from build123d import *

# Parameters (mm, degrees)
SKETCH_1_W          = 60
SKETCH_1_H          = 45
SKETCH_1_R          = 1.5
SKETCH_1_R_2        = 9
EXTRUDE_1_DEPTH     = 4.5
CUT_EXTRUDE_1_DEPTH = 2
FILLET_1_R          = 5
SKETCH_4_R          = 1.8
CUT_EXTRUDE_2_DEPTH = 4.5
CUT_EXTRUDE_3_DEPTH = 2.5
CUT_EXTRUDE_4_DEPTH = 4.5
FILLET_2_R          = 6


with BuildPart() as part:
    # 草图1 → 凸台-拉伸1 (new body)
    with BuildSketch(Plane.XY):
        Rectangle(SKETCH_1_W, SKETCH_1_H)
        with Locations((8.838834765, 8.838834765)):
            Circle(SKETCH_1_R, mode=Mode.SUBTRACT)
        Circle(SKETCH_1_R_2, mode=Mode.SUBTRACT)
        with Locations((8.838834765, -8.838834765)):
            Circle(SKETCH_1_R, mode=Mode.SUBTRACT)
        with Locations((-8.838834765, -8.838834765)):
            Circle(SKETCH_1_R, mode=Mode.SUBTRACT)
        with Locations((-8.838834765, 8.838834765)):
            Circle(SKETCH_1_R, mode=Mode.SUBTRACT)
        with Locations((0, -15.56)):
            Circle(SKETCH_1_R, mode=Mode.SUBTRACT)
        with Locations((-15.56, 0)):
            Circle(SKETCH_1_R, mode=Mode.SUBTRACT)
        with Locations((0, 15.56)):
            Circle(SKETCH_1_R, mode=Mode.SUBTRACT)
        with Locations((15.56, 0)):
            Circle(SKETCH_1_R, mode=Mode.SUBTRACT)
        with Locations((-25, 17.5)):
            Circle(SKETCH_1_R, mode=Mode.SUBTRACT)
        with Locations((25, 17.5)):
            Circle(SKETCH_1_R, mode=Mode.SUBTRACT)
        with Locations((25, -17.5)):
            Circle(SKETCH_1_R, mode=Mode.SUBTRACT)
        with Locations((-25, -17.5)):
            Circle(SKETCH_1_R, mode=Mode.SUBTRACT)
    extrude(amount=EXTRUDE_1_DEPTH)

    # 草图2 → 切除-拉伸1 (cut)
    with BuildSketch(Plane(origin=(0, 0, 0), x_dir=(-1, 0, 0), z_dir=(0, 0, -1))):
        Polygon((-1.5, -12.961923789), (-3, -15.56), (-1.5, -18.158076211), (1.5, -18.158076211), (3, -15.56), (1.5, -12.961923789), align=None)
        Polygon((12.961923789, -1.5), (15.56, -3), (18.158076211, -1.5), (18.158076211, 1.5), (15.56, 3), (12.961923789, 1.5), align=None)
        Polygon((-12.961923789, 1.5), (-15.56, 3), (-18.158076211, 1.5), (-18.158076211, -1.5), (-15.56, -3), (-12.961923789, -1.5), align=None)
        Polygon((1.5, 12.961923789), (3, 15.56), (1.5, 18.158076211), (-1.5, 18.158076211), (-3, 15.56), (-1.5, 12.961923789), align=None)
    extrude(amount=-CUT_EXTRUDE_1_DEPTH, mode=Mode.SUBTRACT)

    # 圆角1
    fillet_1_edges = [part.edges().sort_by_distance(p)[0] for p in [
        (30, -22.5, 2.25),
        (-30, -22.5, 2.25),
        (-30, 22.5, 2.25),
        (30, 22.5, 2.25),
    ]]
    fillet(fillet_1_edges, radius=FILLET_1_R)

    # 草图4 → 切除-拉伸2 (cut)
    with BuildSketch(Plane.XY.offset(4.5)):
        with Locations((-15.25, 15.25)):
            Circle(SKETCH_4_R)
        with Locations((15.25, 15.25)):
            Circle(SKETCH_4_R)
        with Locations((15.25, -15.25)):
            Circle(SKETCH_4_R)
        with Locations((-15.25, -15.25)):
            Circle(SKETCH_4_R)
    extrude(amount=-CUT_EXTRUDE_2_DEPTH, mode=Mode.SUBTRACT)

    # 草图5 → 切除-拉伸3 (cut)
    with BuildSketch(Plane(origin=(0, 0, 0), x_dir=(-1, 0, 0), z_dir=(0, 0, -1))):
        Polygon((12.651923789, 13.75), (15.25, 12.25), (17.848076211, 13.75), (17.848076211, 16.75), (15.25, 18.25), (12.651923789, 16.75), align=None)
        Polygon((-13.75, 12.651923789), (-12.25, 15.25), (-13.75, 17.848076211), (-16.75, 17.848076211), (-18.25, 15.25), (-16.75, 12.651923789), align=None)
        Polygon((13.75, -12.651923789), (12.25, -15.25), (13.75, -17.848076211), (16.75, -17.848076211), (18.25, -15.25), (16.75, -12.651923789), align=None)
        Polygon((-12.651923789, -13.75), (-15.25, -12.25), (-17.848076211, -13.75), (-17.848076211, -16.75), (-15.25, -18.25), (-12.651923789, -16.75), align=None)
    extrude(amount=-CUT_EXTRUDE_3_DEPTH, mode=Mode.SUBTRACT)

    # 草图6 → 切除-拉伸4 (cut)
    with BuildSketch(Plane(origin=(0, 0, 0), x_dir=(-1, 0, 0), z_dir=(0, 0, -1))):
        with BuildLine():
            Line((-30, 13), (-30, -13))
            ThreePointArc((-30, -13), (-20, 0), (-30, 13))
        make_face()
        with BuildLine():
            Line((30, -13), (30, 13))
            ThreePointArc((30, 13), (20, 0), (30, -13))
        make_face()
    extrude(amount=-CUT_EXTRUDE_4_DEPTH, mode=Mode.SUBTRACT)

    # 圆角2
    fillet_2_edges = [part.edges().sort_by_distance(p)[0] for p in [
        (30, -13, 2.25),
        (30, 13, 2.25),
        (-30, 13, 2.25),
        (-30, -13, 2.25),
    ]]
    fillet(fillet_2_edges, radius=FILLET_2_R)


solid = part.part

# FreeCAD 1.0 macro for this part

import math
import FreeCAD as App
import Part
import Sketcher
Q = App.Units.Quantity


def edges_at(feature, points):
    """Names of the edges that pass closest to the given points."""
    edges = feature.Shape.Edges
    near = lambda p: min(range(len(edges)), key=lambda i: edges[i].distToShape(Part.Vertex(*p))[0])
    return sorted({f"Edge{near(p) + 1}" for p in points})

doc = App.newDocument("Part")
body = doc.addObject("PartDesign::Body", "Body")

sketch1 = body.newObject("Sketcher::SketchObject", "Sketch")
sketch1.AttachmentSupport = (doc.getObject("XY_Plane"), [""])
sketch1.MapMode = "FlatFace"
sketch1.addGeometry([
    Part.LineSegment(App.Vector(-30, 22.5, 0), App.Vector(-30, -22.5, 0)),
    Part.LineSegment(App.Vector(-30, -22.5, 0), App.Vector(30, -22.5, 0)),
    Part.LineSegment(App.Vector(30, -22.5, 0), App.Vector(30, 22.5, 0)),
    Part.LineSegment(App.Vector(30, 22.5, 0), App.Vector(-30, 22.5, 0)),
    Part.Circle(App.Vector(-25, -17.5, 0), App.Vector(0, 0, 1), 1.5),
    Part.Circle(App.Vector(-8.838835, -8.838835, 0), App.Vector(0, 0, 1), 1.5),
    Part.Circle(App.Vector(0, -15.56, 0), App.Vector(0, 0, 1), 1.5),
    Part.Circle(App.Vector(25, -17.5, 0), App.Vector(0, 0, 1), 1.5),
    Part.Circle(App.Vector(8.838835, -8.838835, 0), App.Vector(0, 0, 1), 1.5),
    Part.Circle(App.Vector(-15.56, 0, 0), App.Vector(0, 0, 1), 1.5),
    Part.Circle(App.Vector(-8.838835, 8.838835, 0), App.Vector(0, 0, 1), 1.5),
    Part.Circle(App.Vector(-25, 17.5, 0), App.Vector(0, 0, 1), 1.5),
    Part.Circle(App.Vector(0, 0, 0), App.Vector(0, 0, 1), 9),
    Part.Circle(App.Vector(8.838835, 8.838835, 0), App.Vector(0, 0, 1), 1.5),
    Part.Circle(App.Vector(15.56, 0, 0), App.Vector(0, 0, 1), 1.5),
    Part.Circle(App.Vector(0, 15.56, 0), App.Vector(0, 0, 1), 1.5),
    Part.Circle(App.Vector(25, 17.5, 0), App.Vector(0, 0, 1), 1.5),
], False)
sketch1.addConstraint([
    Sketcher.Constraint("Coincident", 0, 2, 1, 1),
    Sketcher.Constraint("Coincident", 1, 2, 2, 1),
    Sketcher.Constraint("Coincident", 2, 2, 3, 1),
    Sketcher.Constraint("Coincident", 3, 2, 0, 1),
    Sketcher.Constraint("Vertical", 0),
    Sketcher.Constraint("Horizontal", 1),
    Sketcher.Constraint("Vertical", 2),
    Sketcher.Constraint("Horizontal", 3),
    Sketcher.Constraint("Coincident", 12, 3, -1, 1),
    Sketcher.Constraint("Equal", 4, 5),
    Sketcher.Constraint("Equal", 5, 6),
    Sketcher.Constraint("Equal", 6, 7),
    Sketcher.Constraint("Equal", 7, 8),
    Sketcher.Constraint("Equal", 8, 9),
    Sketcher.Constraint("Equal", 9, 10),
    Sketcher.Constraint("Equal", 10, 11),
    Sketcher.Constraint("Equal", 11, 13),
    Sketcher.Constraint("Equal", 13, 14),
    Sketcher.Constraint("Equal", 14, 15),
    Sketcher.Constraint("Equal", 15, 16),
    Sketcher.Constraint("Symmetric", 8, 3, 10, 3, -1, 1),
    Sketcher.Constraint("Symmetric", 7, 3, 11, 3, -1, 1),
    Sketcher.Constraint("Symmetric", 5, 3, 13, 3, -1, 1),
    Sketcher.Constraint("Symmetric", 9, 3, 14, 3, -1, 1),
    Sketcher.Constraint("Symmetric", 6, 3, 15, 3, -1, 1),
    Sketcher.Constraint("Symmetric", 4, 3, 16, 3, -1, 1),
    Sketcher.Constraint("Symmetric", 0, 2, 2, 2, -1, 1),
    Sketcher.Constraint("Symmetric", 4, 3, 7, 3, -2),
    Sketcher.Constraint("Symmetric", 5, 3, 8, 3, -2),
    Sketcher.Constraint("PointOnObject", 6, 3, -2),
    Sketcher.Constraint("PointOnObject", 9, 3, -1),
    Sketcher.Constraint("Diameter", 4, 3.0),
    Sketcher.Constraint("Diameter", 12, 18.0),
    Sketcher.Constraint("DistanceX", 1, 1, 1, 2, 60.0),
    Sketcher.Constraint("DistanceY", 0, 2, 0, 1, 45.0),
    Sketcher.Constraint("DistanceX", 4, 3, -1, 1, 25.0),
    Sketcher.Constraint("DistanceY", 4, 3, 11, 3, 35.0),
    Sketcher.Constraint("DistanceY", 6, 3, -1, 1, 15.56),
    Sketcher.Constraint("DistanceX", 9, 3, -1, 1, 15.56),
    Sketcher.Constraint("DistanceX", 5, 3, 8, 3, 17.67767),
    Sketcher.Constraint("DistanceY", 5, 3, 10, 3, 17.67767),
])
pad1 = body.newObject("PartDesign::Pad", "Pad")
pad1.Profile = sketch1
pad1.Length = 4.5

sketch2 = body.newObject("Sketcher::SketchObject", "Sketch001")
sketch2.AttachmentSupport = (doc.getObject("XY_Plane"), [""])
sketch2.MapMode = "FlatFace"
sketch2.addGeometry([
    Part.LineSegment(App.Vector(1.5, -12.961924, 0), App.Vector(3, -15.56, 0)),
    Part.LineSegment(App.Vector(3, -15.56, 0), App.Vector(1.5, -18.158076, 0)),
    Part.LineSegment(App.Vector(1.5, -18.158076, 0), App.Vector(-1.5, -18.158076, 0)),
    Part.LineSegment(App.Vector(-1.5, -18.158076, 0), App.Vector(-3, -15.56, 0)),
    Part.LineSegment(App.Vector(-3, -15.56, 0), App.Vector(-1.5, -12.961924, 0)),
    Part.LineSegment(App.Vector(-1.5, -12.961924, 0), App.Vector(1.5, -12.961924, 0)),
    Part.LineSegment(App.Vector(-12.961924, -1.5, 0), App.Vector(-15.56, -3, 0)),
    Part.LineSegment(App.Vector(-15.56, -3, 0), App.Vector(-18.158076, -1.5, 0)),
    Part.LineSegment(App.Vector(-18.158076, -1.5, 0), App.Vector(-18.158076, 1.5, 0)),
    Part.LineSegment(App.Vector(-18.158076, 1.5, 0), App.Vector(-15.56, 3, 0)),
    Part.LineSegment(App.Vector(-15.56, 3, 0), App.Vector(-12.961924, 1.5, 0)),
    Part.LineSegment(App.Vector(-12.961924, 1.5, 0), App.Vector(-12.961924, -1.5, 0)),
    Part.LineSegment(App.Vector(12.961924, 1.5, 0), App.Vector(15.56, 3, 0)),
    Part.LineSegment(App.Vector(15.56, 3, 0), App.Vector(18.158076, 1.5, 0)),
    Part.LineSegment(App.Vector(18.158076, 1.5, 0), App.Vector(18.158076, -1.5, 0)),
    Part.LineSegment(App.Vector(18.158076, -1.5, 0), App.Vector(15.56, -3, 0)),
    Part.LineSegment(App.Vector(15.56, -3, 0), App.Vector(12.961924, -1.5, 0)),
    Part.LineSegment(App.Vector(12.961924, -1.5, 0), App.Vector(12.961924, 1.5, 0)),
    Part.LineSegment(App.Vector(-1.5, 12.961924, 0), App.Vector(-3, 15.56, 0)),
    Part.LineSegment(App.Vector(-3, 15.56, 0), App.Vector(-1.5, 18.158076, 0)),
    Part.LineSegment(App.Vector(-1.5, 18.158076, 0), App.Vector(1.5, 18.158076, 0)),
    Part.LineSegment(App.Vector(1.5, 18.158076, 0), App.Vector(3, 15.56, 0)),
    Part.LineSegment(App.Vector(3, 15.56, 0), App.Vector(1.5, 12.961924, 0)),
    Part.LineSegment(App.Vector(1.5, 12.961924, 0), App.Vector(-1.5, 12.961924, 0)),
], False)
sketch2.addConstraint([
    Sketcher.Constraint("Coincident", 0, 2, 1, 1),
    Sketcher.Constraint("Coincident", 1, 2, 2, 1),
    Sketcher.Constraint("Coincident", 2, 2, 3, 1),
    Sketcher.Constraint("Coincident", 3, 2, 4, 1),
    Sketcher.Constraint("Coincident", 4, 2, 5, 1),
    Sketcher.Constraint("Coincident", 5, 2, 0, 1),
    Sketcher.Constraint("Coincident", 6, 2, 7, 1),
    Sketcher.Constraint("Coincident", 7, 2, 8, 1),
    Sketcher.Constraint("Coincident", 8, 2, 9, 1),
    Sketcher.Constraint("Coincident", 9, 2, 10, 1),
    Sketcher.Constraint("Coincident", 10, 2, 11, 1),
    Sketcher.Constraint("Coincident", 11, 2, 6, 1),
    Sketcher.Constraint("Coincident", 12, 2, 13, 1),
    Sketcher.Constraint("Coincident", 13, 2, 14, 1),
    Sketcher.Constraint("Coincident", 14, 2, 15, 1),
    Sketcher.Constraint("Coincident", 15, 2, 16, 1),
    Sketcher.Constraint("Coincident", 16, 2, 17, 1),
    Sketcher.Constraint("Coincident", 17, 2, 12, 1),
    Sketcher.Constraint("Coincident", 18, 2, 19, 1),
    Sketcher.Constraint("Coincident", 19, 2, 20, 1),
    Sketcher.Constraint("Coincident", 20, 2, 21, 1),
    Sketcher.Constraint("Coincident", 21, 2, 22, 1),
    Sketcher.Constraint("Coincident", 22, 2, 23, 1),
    Sketcher.Constraint("Coincident", 23, 2, 18, 1),
    Sketcher.Constraint("Horizontal", 2),
    Sketcher.Constraint("Horizontal", 5),
    Sketcher.Constraint("Vertical", 8),
    Sketcher.Constraint("Vertical", 11),
    Sketcher.Constraint("Vertical", 14),
    Sketcher.Constraint("Vertical", 17),
    Sketcher.Constraint("Horizontal", 20),
    Sketcher.Constraint("Horizontal", 23),
    Sketcher.Constraint("Symmetric", 6, 2, 12, 2, -1, 1),
    Sketcher.Constraint("Symmetric", 7, 2, 13, 2, -1, 1),
    Sketcher.Constraint("Symmetric", 9, 2, 15, 2, -1, 1),
    Sketcher.Constraint("Symmetric", 10, 2, 16, 2, -1, 1),
    Sketcher.Constraint("Symmetric", 0, 2, 18, 2, -1, 1),
    Sketcher.Constraint("Symmetric", 1, 2, 19, 2, -1, 1),
    Sketcher.Constraint("Symmetric", 3, 2, 21, 2, -1, 1),
    Sketcher.Constraint("Symmetric", 4, 2, 22, 2, -1, 1),
    Sketcher.Constraint("Symmetric", 0, 2, 3, 2, -2),
    Sketcher.Constraint("Symmetric", 9, 2, 12, 2, -2),
    Sketcher.Constraint("Parallel", 0, 3),
    Sketcher.Constraint("Parallel", 1, 4),
    Sketcher.Constraint("Perpendicular", 3, 6),
    Sketcher.Constraint("Perpendicular", 4, 7),
    Sketcher.Constraint("Parallel", 6, 9),
    Sketcher.Constraint("Parallel", 7, 10),
    Sketcher.Constraint("Parallel", 9, 12),
    Sketcher.Constraint("Parallel", 12, 15),
    Sketcher.Constraint("Perpendicular", 15, 18),
    Sketcher.Constraint("Parallel", 18, 21),
    Sketcher.Constraint("Horizontal", 8, 2, 10, 2),
    Sketcher.Constraint("Horizontal", 7, 2, 11, 2),
    Sketcher.Constraint("Vertical", 2, 2, 4, 2),
    Sketcher.Constraint("Equal", 23, 8),
    Sketcher.Constraint("Equal", 4, 6),
    Sketcher.Constraint("DistanceX", 2, 2, 2, 1, 3.0),
    Sketcher.Constraint("Angle", 0, Q("-60 deg")),
    Sketcher.Constraint("Distance", 0, 3.0),
    Sketcher.Constraint("DistanceY", 0, 2, -1, 1, 15.56),
    Sketcher.Constraint("DistanceX", 6, 2, -1, 1, 15.56),
])
pocket1 = body.newObject("PartDesign::Pocket", "Pocket")
pocket1.Profile = sketch2
pocket1.Length = 2
pocket1.Reversed = True
doc.recompute()

fillet = body.newObject("PartDesign::Fillet", "Fillet")
fillet.Base = (pocket1, edges_at(pocket1, [
    (30, -22.5, 2.25),
    (-30, -22.5, 2.25),
    (-30, 22.5, 2.25),
    (30, 22.5, 2.25),
]))
fillet.Radius = 5

sketch3 = body.newObject("Sketcher::SketchObject", "Sketch002")
sketch3.AttachmentSupport = (doc.getObject("XY_Plane"), [""])
sketch3.MapMode = "FlatFace"
sketch3.AttachmentOffset = App.Placement(App.Vector(0, 0, 4.5), App.Rotation())
sketch3.addGeometry([
    Part.Circle(App.Vector(-15.25, 15.25, 0), App.Vector(0, 0, 1), 1.8),
    Part.Circle(App.Vector(15.25, 15.25, 0), App.Vector(0, 0, 1), 1.8),
    Part.Circle(App.Vector(15.25, -15.25, 0), App.Vector(0, 0, 1), 1.8),
    Part.Circle(App.Vector(-15.25, -15.25, 0), App.Vector(0, 0, 1), 1.8),
], False)
sketch3.addConstraint([
    Sketcher.Constraint("Equal", 0, 1),
    Sketcher.Constraint("Equal", 1, 2),
    Sketcher.Constraint("Equal", 2, 3),
    Sketcher.Constraint("Symmetric", 0, 3, 2, 3, -1, 1),
    Sketcher.Constraint("Symmetric", 1, 3, 3, 3, -1, 1),
    Sketcher.Constraint("Symmetric", 0, 3, 1, 3, -2),
    Sketcher.Constraint("Diameter", 0, 3.6),
    Sketcher.Constraint("DistanceX", 0, 3, 1, 3, 30.5),
    Sketcher.Constraint("DistanceY", 2, 3, 1, 3, 30.5),
])
pocket2 = body.newObject("PartDesign::Pocket", "Pocket001")
pocket2.Profile = sketch3
pocket2.Length = 4.5

sketch4 = body.newObject("Sketcher::SketchObject", "Sketch003")
sketch4.AttachmentSupport = (doc.getObject("XY_Plane"), [""])
sketch4.MapMode = "FlatFace"
sketch4.addGeometry([
    Part.LineSegment(App.Vector(-12.651924, 13.75, 0), App.Vector(-15.25, 12.25, 0)),
    Part.LineSegment(App.Vector(-15.25, 12.25, 0), App.Vector(-17.848076, 13.75, 0)),
    Part.LineSegment(App.Vector(-17.848076, 13.75, 0), App.Vector(-17.848076, 16.75, 0)),
    Part.LineSegment(App.Vector(-17.848076, 16.75, 0), App.Vector(-15.25, 18.25, 0)),
    Part.LineSegment(App.Vector(-15.25, 18.25, 0), App.Vector(-12.651924, 16.75, 0)),
    Part.LineSegment(App.Vector(-12.651924, 16.75, 0), App.Vector(-12.651924, 13.75, 0)),
    Part.LineSegment(App.Vector(13.75, 12.651924, 0), App.Vector(12.25, 15.25, 0)),
    Part.LineSegment(App.Vector(12.25, 15.25, 0), App.Vector(13.75, 17.848076, 0)),
    Part.LineSegment(App.Vector(13.75, 17.848076, 0), App.Vector(16.75, 17.848076, 0)),
    Part.LineSegment(App.Vector(16.75, 17.848076, 0), App.Vector(18.25, 15.25, 0)),
    Part.LineSegment(App.Vector(18.25, 15.25, 0), App.Vector(16.75, 12.651924, 0)),
    Part.LineSegment(App.Vector(16.75, 12.651924, 0), App.Vector(13.75, 12.651924, 0)),
    Part.LineSegment(App.Vector(-13.75, -12.651924, 0), App.Vector(-12.25, -15.25, 0)),
    Part.LineSegment(App.Vector(-12.25, -15.25, 0), App.Vector(-13.75, -17.848076, 0)),
    Part.LineSegment(App.Vector(-13.75, -17.848076, 0), App.Vector(-16.75, -17.848076, 0)),
    Part.LineSegment(App.Vector(-16.75, -17.848076, 0), App.Vector(-18.25, -15.25, 0)),
    Part.LineSegment(App.Vector(-18.25, -15.25, 0), App.Vector(-16.75, -12.651924, 0)),
    Part.LineSegment(App.Vector(-16.75, -12.651924, 0), App.Vector(-13.75, -12.651924, 0)),
    Part.LineSegment(App.Vector(12.651924, -13.75, 0), App.Vector(15.25, -12.25, 0)),
    Part.LineSegment(App.Vector(15.25, -12.25, 0), App.Vector(17.848076, -13.75, 0)),
    Part.LineSegment(App.Vector(17.848076, -13.75, 0), App.Vector(17.848076, -16.75, 0)),
    Part.LineSegment(App.Vector(17.848076, -16.75, 0), App.Vector(15.25, -18.25, 0)),
    Part.LineSegment(App.Vector(15.25, -18.25, 0), App.Vector(12.651924, -16.75, 0)),
    Part.LineSegment(App.Vector(12.651924, -16.75, 0), App.Vector(12.651924, -13.75, 0)),
], False)
sketch4.addConstraint([
    Sketcher.Constraint("Coincident", 0, 2, 1, 1),
    Sketcher.Constraint("Coincident", 1, 2, 2, 1),
    Sketcher.Constraint("Coincident", 2, 2, 3, 1),
    Sketcher.Constraint("Coincident", 3, 2, 4, 1),
    Sketcher.Constraint("Coincident", 4, 2, 5, 1),
    Sketcher.Constraint("Coincident", 5, 2, 0, 1),
    Sketcher.Constraint("Coincident", 6, 2, 7, 1),
    Sketcher.Constraint("Coincident", 7, 2, 8, 1),
    Sketcher.Constraint("Coincident", 8, 2, 9, 1),
    Sketcher.Constraint("Coincident", 9, 2, 10, 1),
    Sketcher.Constraint("Coincident", 10, 2, 11, 1),
    Sketcher.Constraint("Coincident", 11, 2, 6, 1),
    Sketcher.Constraint("Coincident", 12, 2, 13, 1),
    Sketcher.Constraint("Coincident", 13, 2, 14, 1),
    Sketcher.Constraint("Coincident", 14, 2, 15, 1),
    Sketcher.Constraint("Coincident", 15, 2, 16, 1),
    Sketcher.Constraint("Coincident", 16, 2, 17, 1),
    Sketcher.Constraint("Coincident", 17, 2, 12, 1),
    Sketcher.Constraint("Coincident", 18, 2, 19, 1),
    Sketcher.Constraint("Coincident", 19, 2, 20, 1),
    Sketcher.Constraint("Coincident", 20, 2, 21, 1),
    Sketcher.Constraint("Coincident", 21, 2, 22, 1),
    Sketcher.Constraint("Coincident", 22, 2, 23, 1),
    Sketcher.Constraint("Coincident", 23, 2, 18, 1),
    Sketcher.Constraint("Vertical", 2),
    Sketcher.Constraint("Vertical", 5),
    Sketcher.Constraint("Horizontal", 8),
    Sketcher.Constraint("Horizontal", 11),
    Sketcher.Constraint("Horizontal", 14),
    Sketcher.Constraint("Horizontal", 17),
    Sketcher.Constraint("Vertical", 20),
    Sketcher.Constraint("Vertical", 23),
    Sketcher.Constraint("Symmetric", 6, 2, 12, 2, -1, 1),
    Sketcher.Constraint("Symmetric", 7, 2, 13, 2, -1, 1),
    Sketcher.Constraint("Symmetric", 9, 2, 15, 2, -1, 1),
    Sketcher.Constraint("Symmetric", 10, 2, 16, 2, -1, 1),
    Sketcher.Constraint("Symmetric", 0, 2, 18, 2, -1, 1),
    Sketcher.Constraint("Symmetric", 1, 2, 19, 2, -1, 1),
    Sketcher.Constraint("Symmetric", 3, 2, 21, 2, -1, 1),
    Sketcher.Constraint("Symmetric", 4, 2, 22, 2, -1, 1),
    Sketcher.Constraint("Parallel", 0, 3),
    Sketcher.Constraint("Parallel", 1, 4),
    Sketcher.Constraint("Perpendicular", 3, 6),
    Sketcher.Constraint("Perpendicular", 4, 7),
    Sketcher.Constraint("Parallel", 6, 9),
    Sketcher.Constraint("Parallel", 7, 10),
    Sketcher.Constraint("Parallel", 9, 12),
    Sketcher.Constraint("Parallel", 12, 15),
    Sketcher.Constraint("Perpendicular", 15, 18),
    Sketcher.Constraint("Parallel", 18, 21),
    Sketcher.Constraint("Horizontal", 2, 2, 4, 2),
    Sketcher.Constraint("Horizontal", 1, 2, 5, 2),
    Sketcher.Constraint("Horizontal", 6, 2, 9, 2),
    Sketcher.Constraint("Vertical", 0, 2, 3, 2),
    Sketcher.Constraint("Vertical", 8, 2, 10, 2),
    Sketcher.Constraint("Equal", 17, 2),
    Sketcher.Constraint("Equal", 4, 6),
    Sketcher.Constraint("DistanceX", 8, 1, 8, 2, 3.0),
    Sketcher.Constraint("Angle", 0, Q("-150 deg")),
    Sketcher.Constraint("Distance", 0, 3.0),
    Sketcher.Constraint("DistanceY", 0, 2, 6, 2, 3.0),
    Sketcher.Constraint("DistanceX", 3, 2, 7, 2, 29.0),
    Sketcher.Constraint("DistanceX", 0, 2, 12, 2, 3.0),
    Sketcher.Constraint("DistanceY", 12, 2, 5, 2, 29.0),
])
pocket3 = body.newObject("PartDesign::Pocket", "Pocket002")
pocket3.Profile = sketch4
pocket3.Length = 2.5
pocket3.Reversed = True

sketch5 = body.newObject("Sketcher::SketchObject", "Sketch004")
sketch5.AttachmentSupport = (doc.getObject("XY_Plane"), [""])
sketch5.MapMode = "FlatFace"
sketch5.addGeometry([
    Part.LineSegment(App.Vector(30, 13, 0), App.Vector(30, -13, 0)),
    Part.ArcOfCircle(Part.Circle(App.Vector(33.45, 0, 0), App.Vector(0, 0, 1), 13.45), math.radians(104.862816), math.radians(255.137184)),
    Part.LineSegment(App.Vector(-30, -13, 0), App.Vector(-30, 13, 0)),
    Part.ArcOfCircle(Part.Circle(App.Vector(-33.45, 0, 0), App.Vector(0, 0, 1), 13.45), math.radians(-75.137184), math.radians(75.137184)),
], False)
sketch5.addConstraint([
    Sketcher.Constraint("Coincident", 0, 1, 1, 1),
    Sketcher.Constraint("Coincident", 1, 2, 0, 2),
    Sketcher.Constraint("Coincident", 2, 1, 3, 1),
    Sketcher.Constraint("Coincident", 3, 2, 2, 2),
    Sketcher.Constraint("Vertical", 0),
    Sketcher.Constraint("Vertical", 2),
    Sketcher.Constraint("Equal", 1, 3),
    Sketcher.Constraint("Symmetric", 1, 3, 3, 3, -1, 1),
    Sketcher.Constraint("Symmetric", 1, 2, 2, 1, -2),
    Sketcher.Constraint("DistanceY", 0, 2, 0, 1, 26.0),
    Sketcher.Constraint("Radius", 1, 13.45),
    Sketcher.Constraint("DistanceX", -1, 1, 0, 1, 30.0),
])
pocket4 = body.newObject("PartDesign::Pocket", "Pocket003")
pocket4.Profile = sketch5
pocket4.Length = 4.5
pocket4.Reversed = True
doc.recompute()

fillet2 = body.newObject("PartDesign::Fillet", "Fillet001")
fillet2.Base = (pocket4, edges_at(pocket4, [
    (30, -13, 2.25),
    (30, 13, 2.25),
    (-30, 13, 2.25),
    (-30, -13, 2.25),
]))
fillet2.Radius = 6

doc.recompute()
